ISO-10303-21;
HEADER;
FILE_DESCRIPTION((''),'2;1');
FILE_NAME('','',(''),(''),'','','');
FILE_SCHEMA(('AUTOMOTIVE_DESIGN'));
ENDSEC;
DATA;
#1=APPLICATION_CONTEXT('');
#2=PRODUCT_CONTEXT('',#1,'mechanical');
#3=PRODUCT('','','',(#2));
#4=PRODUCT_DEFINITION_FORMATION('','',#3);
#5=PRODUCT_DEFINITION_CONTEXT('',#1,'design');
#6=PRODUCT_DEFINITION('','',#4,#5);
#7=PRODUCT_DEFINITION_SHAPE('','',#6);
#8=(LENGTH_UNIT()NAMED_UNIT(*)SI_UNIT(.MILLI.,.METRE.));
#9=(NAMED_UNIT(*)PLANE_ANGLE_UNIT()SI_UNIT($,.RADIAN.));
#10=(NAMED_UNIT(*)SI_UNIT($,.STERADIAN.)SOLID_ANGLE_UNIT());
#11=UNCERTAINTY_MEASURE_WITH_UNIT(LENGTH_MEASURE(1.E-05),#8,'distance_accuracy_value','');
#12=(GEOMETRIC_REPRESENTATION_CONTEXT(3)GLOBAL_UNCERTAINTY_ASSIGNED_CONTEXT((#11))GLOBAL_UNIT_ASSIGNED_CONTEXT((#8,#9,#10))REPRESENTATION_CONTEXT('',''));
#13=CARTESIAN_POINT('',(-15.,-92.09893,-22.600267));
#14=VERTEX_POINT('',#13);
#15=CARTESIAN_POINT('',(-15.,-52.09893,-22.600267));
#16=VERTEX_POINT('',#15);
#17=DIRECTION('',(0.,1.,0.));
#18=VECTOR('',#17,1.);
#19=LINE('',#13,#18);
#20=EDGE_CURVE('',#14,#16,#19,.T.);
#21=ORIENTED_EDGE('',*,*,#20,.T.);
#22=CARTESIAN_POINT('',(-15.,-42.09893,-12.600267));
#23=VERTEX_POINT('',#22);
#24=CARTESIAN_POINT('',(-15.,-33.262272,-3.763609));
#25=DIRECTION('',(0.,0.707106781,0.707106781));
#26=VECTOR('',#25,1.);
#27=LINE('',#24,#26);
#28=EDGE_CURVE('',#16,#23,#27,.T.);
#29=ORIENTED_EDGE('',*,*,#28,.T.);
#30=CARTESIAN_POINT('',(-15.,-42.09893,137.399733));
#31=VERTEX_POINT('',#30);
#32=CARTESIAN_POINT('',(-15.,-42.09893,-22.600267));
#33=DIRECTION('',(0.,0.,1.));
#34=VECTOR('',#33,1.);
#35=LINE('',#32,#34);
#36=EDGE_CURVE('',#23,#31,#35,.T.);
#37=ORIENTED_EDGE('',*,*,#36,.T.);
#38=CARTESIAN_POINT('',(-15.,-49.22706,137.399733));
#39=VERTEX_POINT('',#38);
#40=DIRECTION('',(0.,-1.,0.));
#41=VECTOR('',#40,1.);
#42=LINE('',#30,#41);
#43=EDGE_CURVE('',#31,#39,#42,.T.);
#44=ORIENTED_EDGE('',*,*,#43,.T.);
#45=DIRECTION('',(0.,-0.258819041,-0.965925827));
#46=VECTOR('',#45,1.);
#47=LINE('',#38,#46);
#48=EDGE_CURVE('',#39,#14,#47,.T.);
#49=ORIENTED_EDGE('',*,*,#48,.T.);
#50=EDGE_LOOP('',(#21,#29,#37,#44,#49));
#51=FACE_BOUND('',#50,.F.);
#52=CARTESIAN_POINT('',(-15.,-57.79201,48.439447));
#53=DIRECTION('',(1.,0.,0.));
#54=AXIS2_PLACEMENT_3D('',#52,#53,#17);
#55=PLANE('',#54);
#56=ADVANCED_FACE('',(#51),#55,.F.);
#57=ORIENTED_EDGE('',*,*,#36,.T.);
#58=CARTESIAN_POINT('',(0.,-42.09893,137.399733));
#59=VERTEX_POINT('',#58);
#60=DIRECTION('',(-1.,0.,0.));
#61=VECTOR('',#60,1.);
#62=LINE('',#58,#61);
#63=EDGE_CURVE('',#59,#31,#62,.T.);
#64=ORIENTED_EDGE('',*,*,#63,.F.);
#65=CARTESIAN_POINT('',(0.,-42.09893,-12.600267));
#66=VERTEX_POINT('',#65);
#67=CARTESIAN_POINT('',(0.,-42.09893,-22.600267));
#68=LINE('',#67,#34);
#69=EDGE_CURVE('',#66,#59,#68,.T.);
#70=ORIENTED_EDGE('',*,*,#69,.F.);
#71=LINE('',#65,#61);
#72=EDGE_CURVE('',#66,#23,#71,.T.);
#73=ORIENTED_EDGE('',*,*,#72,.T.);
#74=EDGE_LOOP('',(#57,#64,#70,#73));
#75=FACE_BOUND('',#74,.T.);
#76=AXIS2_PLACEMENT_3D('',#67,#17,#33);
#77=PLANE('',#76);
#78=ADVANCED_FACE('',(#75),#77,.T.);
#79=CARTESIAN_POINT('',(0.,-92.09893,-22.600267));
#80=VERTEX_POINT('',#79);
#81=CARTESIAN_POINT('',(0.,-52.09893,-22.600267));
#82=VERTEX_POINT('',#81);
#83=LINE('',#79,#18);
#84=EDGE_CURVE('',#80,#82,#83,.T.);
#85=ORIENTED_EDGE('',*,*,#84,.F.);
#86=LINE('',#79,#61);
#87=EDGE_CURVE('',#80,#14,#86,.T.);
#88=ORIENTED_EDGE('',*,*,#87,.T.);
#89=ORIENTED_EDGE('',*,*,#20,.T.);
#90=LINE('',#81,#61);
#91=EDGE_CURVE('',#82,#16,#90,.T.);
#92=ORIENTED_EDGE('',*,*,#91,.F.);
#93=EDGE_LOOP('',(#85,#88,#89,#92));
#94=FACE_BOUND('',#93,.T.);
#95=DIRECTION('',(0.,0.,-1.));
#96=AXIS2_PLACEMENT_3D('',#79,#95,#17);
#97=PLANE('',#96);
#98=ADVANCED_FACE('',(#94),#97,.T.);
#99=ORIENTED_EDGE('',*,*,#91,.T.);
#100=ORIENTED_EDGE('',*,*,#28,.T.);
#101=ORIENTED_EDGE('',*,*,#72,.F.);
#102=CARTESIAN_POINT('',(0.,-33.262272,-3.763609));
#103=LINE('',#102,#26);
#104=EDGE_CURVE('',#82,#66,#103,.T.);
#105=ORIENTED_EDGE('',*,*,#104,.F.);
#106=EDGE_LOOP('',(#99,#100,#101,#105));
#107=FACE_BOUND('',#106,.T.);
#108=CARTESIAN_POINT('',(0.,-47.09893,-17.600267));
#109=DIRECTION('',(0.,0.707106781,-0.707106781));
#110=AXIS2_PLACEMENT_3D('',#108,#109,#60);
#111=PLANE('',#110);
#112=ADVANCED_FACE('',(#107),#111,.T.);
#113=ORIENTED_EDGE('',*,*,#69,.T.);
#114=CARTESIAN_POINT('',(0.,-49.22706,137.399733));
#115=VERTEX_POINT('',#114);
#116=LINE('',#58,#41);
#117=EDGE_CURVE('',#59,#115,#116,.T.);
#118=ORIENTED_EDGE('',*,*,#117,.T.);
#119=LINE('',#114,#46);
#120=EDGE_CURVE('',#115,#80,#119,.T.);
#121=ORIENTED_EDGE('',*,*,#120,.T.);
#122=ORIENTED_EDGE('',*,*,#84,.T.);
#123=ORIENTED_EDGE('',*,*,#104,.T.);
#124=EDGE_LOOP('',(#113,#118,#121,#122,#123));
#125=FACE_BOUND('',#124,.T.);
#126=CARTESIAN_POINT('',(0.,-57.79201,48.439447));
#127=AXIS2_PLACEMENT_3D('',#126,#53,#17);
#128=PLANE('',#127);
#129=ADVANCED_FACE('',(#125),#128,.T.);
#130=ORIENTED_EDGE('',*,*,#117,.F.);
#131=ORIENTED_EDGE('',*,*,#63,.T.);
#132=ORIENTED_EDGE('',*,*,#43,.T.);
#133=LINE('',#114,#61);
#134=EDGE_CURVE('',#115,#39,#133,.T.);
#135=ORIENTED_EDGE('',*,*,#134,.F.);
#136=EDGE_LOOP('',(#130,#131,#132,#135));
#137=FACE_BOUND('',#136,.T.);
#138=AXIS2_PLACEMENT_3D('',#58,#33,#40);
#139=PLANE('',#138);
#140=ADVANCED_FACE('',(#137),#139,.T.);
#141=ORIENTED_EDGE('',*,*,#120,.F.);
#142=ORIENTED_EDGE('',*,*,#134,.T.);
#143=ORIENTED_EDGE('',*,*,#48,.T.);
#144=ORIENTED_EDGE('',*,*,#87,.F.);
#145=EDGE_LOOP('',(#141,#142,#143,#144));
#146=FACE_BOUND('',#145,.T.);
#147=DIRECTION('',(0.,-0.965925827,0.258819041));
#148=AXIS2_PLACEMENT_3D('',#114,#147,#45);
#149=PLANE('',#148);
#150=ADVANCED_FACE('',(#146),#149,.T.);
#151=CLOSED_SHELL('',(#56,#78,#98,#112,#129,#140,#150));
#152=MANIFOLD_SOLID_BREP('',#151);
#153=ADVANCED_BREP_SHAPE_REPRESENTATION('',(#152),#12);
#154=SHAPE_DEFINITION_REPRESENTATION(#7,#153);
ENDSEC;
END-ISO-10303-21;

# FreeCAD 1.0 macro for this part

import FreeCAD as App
import Part
import Sketcher
Q = App.Units.Quantity


def edges_at(feature, points):
    """Names of the edges that pass closest to the given points."""
    edges = feature.Shape.Edges
    near = lambda p: min(range(len(edges)), key=lambda i: edges[i].distToShape(Part.Vertex(*p))[0])
    return sorted({f"Edge{near(p) + 1}" for p in points})


def add_polygon(sketch, points):
    """Adds a closed chain of lines whose ends are joined by coincident constraints."""
    first, n = sketch.GeometryCount, len(points)
    for a, b in zip(points, points[1:] + points[:1]):
        sketch.addGeometry(Part.LineSegment(App.Vector(*a, 0), App.Vector(*b, 0)), False)
    for i in range(n):
        sketch.addConstraint(Sketcher.Constraint("Coincident", first + i, 2, first + (i + 1) % n, 1))

doc = App.newDocument("Part")
params = doc.addObject("Spreadsheet::Sheet", "Params")
for row, (alias, value) in enumerate([
    ("sketch1_width", "50 mm"),
    ("sketch1_height", "160 mm"),
    ("pad1_length", "15 mm"),
    ("chamfer_size", "10 mm"),
    ("chamfer_size2", "10 mm"),
], start=1):
    params.set(f"A{row}", alias)
    params.set(f"B{row}", "=" + value)
    params.setAlias(f"B{row}", alias)

body = doc.addObject("PartDesign::Body", "Body")

# Sketch on YZ plane
sketch1 = body.newObject("Sketcher::SketchObject", "Sketch")
sketch1.AttachmentSupport = (doc.getObject("YZ_Plane"), [""])
sketch1.MapMode = "FlatFace"
add_polygon(sketch1, [(-49.22706, 137.399733), (-92.09893, -22.600267), (-42.09893, -22.600267), (-42.09893, 137.399733)])  # lines 0-3
sketch1.addConstraint([
    Sketcher.Constraint("Horizontal", 1),
    Sketcher.Constraint("Vertical", 2),
    Sketcher.Constraint("Horizontal", 3),
    Sketcher.Constraint("DistanceX", 1, 1, 1, 2, Q("50 mm")),
    Sketcher.Constraint("DistanceY", 2, 1, 2, 2, Q("160 mm")),
    Sketcher.Constraint("Angle", 0, Q("-105 deg")),
    Sketcher.Constraint("DistanceX", 0, 2, -1, 1, Q("92.09893 mm")),
    Sketcher.Constraint("DistanceY", 0, 2, -1, 1, Q("22.600267 mm")),
])
sketch1.setExpression("Constraints[7]", "Params.sketch1_width")
sketch1.setExpression("Constraints[8]", "Params.sketch1_height")
pad1 = body.newObject("PartDesign::Pad", "Pad")
pad1.Profile = sketch1
pad1.setExpression("Length", "Params.pad1_length")
pad1.Reversed = True
doc.recompute()

chamfer = body.newObject("PartDesign::Chamfer", "Chamfer")
chamfer.Base = (pad1, edges_at(pad1, [(-7.5, -42.099, -22.6)]))
chamfer.ChamferType = "Two distances"
chamfer.setExpression("Size", "Params.chamfer_size")
chamfer.setExpression("Size2", "Params.chamfer_size2")

doc.recompute()
